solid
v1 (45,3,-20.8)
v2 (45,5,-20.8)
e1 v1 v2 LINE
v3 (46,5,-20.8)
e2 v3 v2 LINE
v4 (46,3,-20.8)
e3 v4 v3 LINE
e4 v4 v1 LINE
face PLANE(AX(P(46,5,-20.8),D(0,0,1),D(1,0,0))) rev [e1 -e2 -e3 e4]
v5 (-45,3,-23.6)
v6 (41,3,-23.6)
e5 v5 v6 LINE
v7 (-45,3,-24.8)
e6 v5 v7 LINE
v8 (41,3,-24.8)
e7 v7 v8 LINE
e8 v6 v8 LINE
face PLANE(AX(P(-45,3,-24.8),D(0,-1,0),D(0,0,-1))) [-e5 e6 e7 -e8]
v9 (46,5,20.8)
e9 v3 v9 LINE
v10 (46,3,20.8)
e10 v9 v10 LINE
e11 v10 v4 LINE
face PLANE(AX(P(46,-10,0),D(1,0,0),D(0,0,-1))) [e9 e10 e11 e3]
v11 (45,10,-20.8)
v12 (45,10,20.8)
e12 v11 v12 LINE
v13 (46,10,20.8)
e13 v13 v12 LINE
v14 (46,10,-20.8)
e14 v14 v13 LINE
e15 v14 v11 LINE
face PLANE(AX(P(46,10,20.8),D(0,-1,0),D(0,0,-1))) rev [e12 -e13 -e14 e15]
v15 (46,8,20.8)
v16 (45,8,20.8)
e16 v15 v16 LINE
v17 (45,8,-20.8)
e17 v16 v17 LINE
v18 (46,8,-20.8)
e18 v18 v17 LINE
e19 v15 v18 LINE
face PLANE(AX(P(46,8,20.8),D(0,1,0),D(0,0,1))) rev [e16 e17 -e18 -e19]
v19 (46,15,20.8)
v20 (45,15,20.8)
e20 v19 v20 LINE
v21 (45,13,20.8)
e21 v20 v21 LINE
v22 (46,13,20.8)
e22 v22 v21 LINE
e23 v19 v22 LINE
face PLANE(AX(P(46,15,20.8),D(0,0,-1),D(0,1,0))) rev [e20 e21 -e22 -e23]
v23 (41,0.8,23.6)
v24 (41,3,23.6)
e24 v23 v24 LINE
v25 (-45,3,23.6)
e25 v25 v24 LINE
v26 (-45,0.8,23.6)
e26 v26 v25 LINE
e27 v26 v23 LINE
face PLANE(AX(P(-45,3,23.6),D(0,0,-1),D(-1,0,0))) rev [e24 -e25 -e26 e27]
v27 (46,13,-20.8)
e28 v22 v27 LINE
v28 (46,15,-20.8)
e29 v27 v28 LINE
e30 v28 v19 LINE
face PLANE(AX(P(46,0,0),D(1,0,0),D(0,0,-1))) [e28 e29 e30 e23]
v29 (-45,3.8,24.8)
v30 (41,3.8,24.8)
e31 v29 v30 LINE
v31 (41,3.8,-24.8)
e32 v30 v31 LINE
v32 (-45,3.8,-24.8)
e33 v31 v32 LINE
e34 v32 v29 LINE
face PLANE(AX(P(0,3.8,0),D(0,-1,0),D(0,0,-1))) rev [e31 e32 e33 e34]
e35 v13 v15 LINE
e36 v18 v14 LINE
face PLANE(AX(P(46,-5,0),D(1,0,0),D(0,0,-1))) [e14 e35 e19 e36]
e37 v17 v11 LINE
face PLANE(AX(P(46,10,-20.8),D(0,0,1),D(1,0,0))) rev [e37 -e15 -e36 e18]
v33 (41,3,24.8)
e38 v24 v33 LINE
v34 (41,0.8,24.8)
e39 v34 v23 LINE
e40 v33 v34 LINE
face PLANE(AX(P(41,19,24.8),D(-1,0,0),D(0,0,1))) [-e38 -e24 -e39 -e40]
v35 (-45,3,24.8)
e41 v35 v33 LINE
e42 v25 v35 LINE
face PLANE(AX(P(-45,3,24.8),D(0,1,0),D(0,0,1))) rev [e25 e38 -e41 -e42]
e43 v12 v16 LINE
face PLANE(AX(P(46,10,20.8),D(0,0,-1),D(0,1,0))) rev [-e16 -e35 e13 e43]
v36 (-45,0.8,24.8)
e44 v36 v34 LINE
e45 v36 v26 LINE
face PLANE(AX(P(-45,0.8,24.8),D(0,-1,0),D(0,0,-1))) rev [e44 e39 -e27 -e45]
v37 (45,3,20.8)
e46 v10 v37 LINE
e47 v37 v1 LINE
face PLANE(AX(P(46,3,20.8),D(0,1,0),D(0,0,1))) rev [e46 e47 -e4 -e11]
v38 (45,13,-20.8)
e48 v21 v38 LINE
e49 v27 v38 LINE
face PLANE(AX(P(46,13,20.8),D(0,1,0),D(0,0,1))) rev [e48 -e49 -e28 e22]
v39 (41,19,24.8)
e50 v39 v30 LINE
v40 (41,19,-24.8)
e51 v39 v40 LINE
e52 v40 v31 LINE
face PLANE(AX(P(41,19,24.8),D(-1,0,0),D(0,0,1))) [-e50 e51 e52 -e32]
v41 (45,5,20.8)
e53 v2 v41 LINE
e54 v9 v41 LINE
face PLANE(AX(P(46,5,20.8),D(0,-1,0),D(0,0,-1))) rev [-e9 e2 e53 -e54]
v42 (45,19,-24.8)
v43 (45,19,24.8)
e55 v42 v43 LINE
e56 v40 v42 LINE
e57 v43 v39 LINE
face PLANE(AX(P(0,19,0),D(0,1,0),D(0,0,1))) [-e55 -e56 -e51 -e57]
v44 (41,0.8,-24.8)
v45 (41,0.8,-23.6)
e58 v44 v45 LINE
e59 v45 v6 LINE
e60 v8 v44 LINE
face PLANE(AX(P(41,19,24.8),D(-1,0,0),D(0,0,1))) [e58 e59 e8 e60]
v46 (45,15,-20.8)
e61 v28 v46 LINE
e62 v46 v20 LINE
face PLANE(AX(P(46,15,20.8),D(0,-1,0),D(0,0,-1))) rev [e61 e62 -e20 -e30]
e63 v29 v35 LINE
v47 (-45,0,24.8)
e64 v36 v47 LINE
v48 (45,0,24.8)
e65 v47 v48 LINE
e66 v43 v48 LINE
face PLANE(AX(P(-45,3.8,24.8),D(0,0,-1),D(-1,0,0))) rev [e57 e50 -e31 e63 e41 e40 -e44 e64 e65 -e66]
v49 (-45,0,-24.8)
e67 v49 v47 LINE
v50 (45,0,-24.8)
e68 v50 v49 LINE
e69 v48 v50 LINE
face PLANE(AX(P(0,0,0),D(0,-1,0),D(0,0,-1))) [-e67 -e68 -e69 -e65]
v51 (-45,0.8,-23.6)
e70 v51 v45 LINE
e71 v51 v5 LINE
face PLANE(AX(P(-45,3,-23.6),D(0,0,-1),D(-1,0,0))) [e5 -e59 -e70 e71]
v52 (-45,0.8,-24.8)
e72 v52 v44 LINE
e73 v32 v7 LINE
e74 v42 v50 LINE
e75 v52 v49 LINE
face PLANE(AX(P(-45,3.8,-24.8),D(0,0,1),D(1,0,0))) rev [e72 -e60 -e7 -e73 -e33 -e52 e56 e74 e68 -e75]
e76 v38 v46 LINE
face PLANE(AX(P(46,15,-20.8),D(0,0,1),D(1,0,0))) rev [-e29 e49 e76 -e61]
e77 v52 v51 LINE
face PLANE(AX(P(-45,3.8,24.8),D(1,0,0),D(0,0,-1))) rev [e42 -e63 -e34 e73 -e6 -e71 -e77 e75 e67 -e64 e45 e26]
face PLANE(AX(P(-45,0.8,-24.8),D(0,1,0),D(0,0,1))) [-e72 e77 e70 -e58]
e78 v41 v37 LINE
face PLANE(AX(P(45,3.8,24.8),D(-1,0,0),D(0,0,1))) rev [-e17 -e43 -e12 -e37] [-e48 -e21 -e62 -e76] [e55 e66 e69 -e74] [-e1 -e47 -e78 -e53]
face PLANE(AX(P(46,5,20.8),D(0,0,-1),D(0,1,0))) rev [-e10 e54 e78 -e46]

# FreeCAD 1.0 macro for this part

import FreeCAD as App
import Part
import Sketcher

V = App.Vector

doc = App.newDocument("Part")
body = doc.addObject("PartDesign::Body", "Body")

# Sketch on XZ plane
sketch1 = body.newObject("Sketcher::SketchObject", "Sketch")
sketch1.AttachmentSupport = (doc.getObject("XZ_Plane"), [""])
sketch1.MapMode = "FlatFace"
sketch1.addGeometry(Part.LineSegment(V(-45, -25, 0), V(-45, 25, 0)), False)
sketch1.addGeometry(Part.LineSegment(V(-45, 25, 0), V(45, 25, 0)), False)
sketch1.addGeometry(Part.LineSegment(V(45, 25, 0), V(45, -25, 0)), False)
sketch1.addGeometry(Part.LineSegment(V(45, -25, 0), V(-45, -25, 0)), False)
sketch1.addConstraint(Sketcher.Constraint("Coincident", 0, 2, 1, 1))
sketch1.addConstraint(Sketcher.Constraint("Coincident", 1, 2, 2, 1))
sketch1.addConstraint(Sketcher.Constraint("Coincident", 2, 2, 3, 1))
sketch1.addConstraint(Sketcher.Constraint("Coincident", 3, 2, 0, 1))
sketch1.addConstraint(Sketcher.Constraint("Vertical", 0))
sketch1.addConstraint(Sketcher.Constraint("Horizontal", 1))
sketch1.addConstraint(Sketcher.Constraint("Vertical", 2))
sketch1.addConstraint(Sketcher.Constraint("Horizontal", 3))
sketch1.addConstraint(Sketcher.Constraint("Symmetric", 0, 2, 2, 2, -1, 1))
sketch1.addConstraint(Sketcher.Constraint("DistanceX", 1, 1, 1, 2, 90.0))
sketch1.addConstraint(Sketcher.Constraint("DistanceY", 0, 1, 0, 2, 49.6))
pad1 = body.newObject("PartDesign::Pad", "Pad")
pad1.Profile = sketch1
pad1.Length = 3.8
pad1.Reversed = True

# Sketch on YZ plane
sketch2 = body.newObject("Sketcher::SketchObject", "Sketch001")
sketch2.AttachmentSupport = (doc.getObject("YZ_Plane"), [""])
sketch2.MapMode = "FlatFace"
sketch2.AttachmentOffset = App.Placement(V(0, 0, 45), App.Rotation())
sketch2.addGeometry(Part.LineSegment(V(3, 24.8, 0), V(0.8, 24.8, 0)), False)
sketch2.addGeometry(Part.LineSegment(V(0.8, 24.8, 0), V(0.8, 23.6, 0)), False)
sketch2.addGeometry(Part.LineSegment(V(0.8, 23.6, 0), V(3, 23.6, 0)), False)
sketch2.addGeometry(Part.LineSegment(V(3, 23.6, 0), V(3, 24.8, 0)), False)
sketch2.addConstraint(Sketcher.Constraint("Coincident", 0, 2, 1, 1))
sketch2.addConstraint(Sketcher.Constraint("Coincident", 1, 2, 2, 1))
sketch2.addConstraint(Sketcher.Constraint("Coincident", 2, 2, 3, 1))
sketch2.addConstraint(Sketcher.Constraint("Coincident", 3, 2, 0, 1))
sketch2.addConstraint(Sketcher.Constraint("Horizontal", 0))
sketch2.addConstraint(Sketcher.Constraint("Vertical", 1))
sketch2.addConstraint(Sketcher.Constraint("Horizontal", 2))
sketch2.addConstraint(Sketcher.Constraint("Vertical", 3))
sketch2.addConstraint(Sketcher.Constraint("DistanceX", 0, 2, 0, 1, 2.2))
sketch2.addConstraint(Sketcher.Constraint("DistanceY", 1, 2, 1, 1, 1.2))
sketch2.addConstraint(Sketcher.Constraint("DistanceX", -1, 1, 2, 2, 3.0))
sketch2.addConstraint(Sketcher.Constraint("DistanceY", -1, 1, 0, 2, 24.8))
pocket1 = body.newObject("PartDesign::Pocket", "Pocket")
pocket1.Profile = sketch2
pocket1.Type = "ThroughAll"
doc.recompute()

mirrored = body.newObject("PartDesign::Mirrored", "Mirrored")
mirrored.Originals = [pocket1]
mirrored.MirrorPlane = (doc.getObject("XY_Plane"), [""])
body.Tip = mirrored

# Sketch on XZ plane
sketch3 = body.newObject("Sketcher::SketchObject", "Sketch002")
sketch3.AttachmentSupport = (doc.getObject("XZ_Plane"), [""])
sketch3.MapMode = "FlatFace"
sketch3.addGeometry(Part.LineSegment(V(41, 24.8, 0), V(41, -24.8, 0)), False)
sketch3.addGeometry(Part.LineSegment(V(41, -24.8, 0), V(45, -24.8, 0)), False)
sketch3.addGeometry(Part.LineSegment(V(45, -24.8, 0), V(45, 24.8, 0)), False)
sketch3.addGeometry(Part.LineSegment(V(45, 24.8, 0), V(41, 24.8, 0)), False)
sketch3.addConstraint(Sketcher.Constraint("Coincident", 0, 2, 1, 1))
sketch3.addConstraint(Sketcher.Constraint("Coincident", 1, 2, 2, 1))
sketch3.addConstraint(Sketcher.Constraint("Coincident", 2, 2, 3, 1))
sketch3.addConstraint(Sketcher.Constraint("Coincident", 3, 2, 0, 1))
sketch3.addConstraint(Sketcher.Constraint("Vertical", 0))
sketch3.addConstraint(Sketcher.Constraint("Horizontal", 1))
sketch3.addConstraint(Sketcher.Constraint("Vertical", 2))
sketch3.addConstraint(Sketcher.Constraint("Horizontal", 3))
sketch3.addConstraint(Sketcher.Constraint("DistanceX", 1, 1, 1, 2, 4.0))
sketch3.addConstraint(Sketcher.Constraint("DistanceY", 0, 2, 0, 1, 49.6))
sketch3.addConstraint(Sketcher.Constraint("DistanceX", -1, 1, 0, 2, 41.0))
sketch3.addConstraint(Sketcher.Constraint("DistanceY", 0, 2, -1, 1, 24.8))
pad2 = body.newObject("PartDesign::Pad", "Pad001")
pad2.Profile = sketch3
pad2.Length = 19
pad2.Reversed = True

# Sketch on YZ plane
sketch4 = body.newObject("Sketcher::SketchObject", "Sketch003")
sketch4.AttachmentSupport = (doc.getObject("YZ_Plane"), [""])
sketch4.MapMode = "FlatFace"
sketch4.AttachmentOffset = App.Placement(V(0, 0, 45), App.Rotation())
sketch4.addGeometry(Part.LineSegment(V(15, 20.8, 0), V(13, 20.8, 0)), False)
sketch4.addGeometry(Part.LineSegment(V(13, 20.8, 0), V(13, -20.8, 0)), False)
sketch4.addGeometry(Part.LineSegment(V(13, -20.8, 0), V(15, -20.8, 0)), False)
sketch4.addGeometry(Part.LineSegment(V(15, -20.8, 0), V(15, 20.8, 0)), False)
sketch4.addConstraint(Sketcher.Constraint("Coincident", 0, 2, 1, 1))
sketch4.addConstraint(Sketcher.Constraint("Coincident", 1, 2, 2, 1))
sketch4.addConstraint(Sketcher.Constraint("Coincident", 2, 2, 3, 1))
sketch4.addConstraint(Sketcher.Constraint("Coincident", 3, 2, 0, 1))
sketch4.addConstraint(Sketcher.Constraint("Horizontal", 0))
sketch4.addConstraint(Sketcher.Constraint("Vertical", 1))
sketch4.addConstraint(Sketcher.Constraint("Horizontal", 2))
sketch4.addConstraint(Sketcher.Constraint("Vertical", 3))
sketch4.addConstraint(Sketcher.Constraint("DistanceX", 0, 2, 0, 1, 2.0))
sketch4.addConstraint(Sketcher.Constraint("DistanceY", 1, 2, 1, 1, 41.6))
sketch4.addConstraint(Sketcher.Constraint("DistanceX", -1, 1, 0, 2, 13.0))
sketch4.addConstraint(Sketcher.Constraint("DistanceY", -1, 1, 0, 2, 20.8))
pad3 = body.newObject("PartDesign::Pad", "Pad002")
pad3.Profile = sketch4
pad3.Length = 1
doc.recompute()

linearpattern = body.newObject("PartDesign::LinearPattern", "LinearPattern")
linearpattern.Originals = [pad3]
linearpattern.Direction = (doc.getObject("Y_Axis"), [""])
linearpattern.Mode = "offset"
linearpattern.Offset = 5
linearpattern.Occurrences = 3
linearpattern.Reversed = True
body.Tip = linearpattern

doc.recompute()
